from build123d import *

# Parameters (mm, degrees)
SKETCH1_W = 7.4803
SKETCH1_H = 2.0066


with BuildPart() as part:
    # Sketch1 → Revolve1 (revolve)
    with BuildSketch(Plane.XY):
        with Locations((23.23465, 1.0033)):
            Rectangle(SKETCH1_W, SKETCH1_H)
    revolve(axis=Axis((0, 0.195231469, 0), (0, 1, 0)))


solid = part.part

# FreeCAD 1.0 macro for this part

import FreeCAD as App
import Part
import Sketcher

V = App.Vector
Q = App.Units.Quantity

doc = App.newDocument("Part")
params = doc.addObject("Spreadsheet::Sheet", "Params")
for row, (alias, value) in enumerate([
    ("sketch1_height", "0.079 in"),
    ("revolution_angle", "360 deg"),
], start=1):
    params.set(f"A{row}", alias)
    params.set(f"B{row}", "=" + value)
    params.setAlias(f"B{row}", alias)

body = doc.addObject("PartDesign::Body", "Body")

# Sketch on XY plane
sketch1 = body.newObject("Sketcher::SketchObject", "Sketch")
sketch1.AttachmentSupport = (doc.getObject("XY_Plane"), [""])
sketch1.MapMode = "FlatFace"
sketch1.addGeometry([
    Part.LineSegment(V(19.5, 2, 0), V(19.5, 0, 0)),
    Part.LineSegment(V(19.5, 0, 0), V(27, 0, 0)),
    Part.LineSegment(V(27, 0, 0), V(27, 2, 0)),
    Part.LineSegment(V(27, 2, 0), V(19.5, 2, 0)),
], False)
sketch1.addConstraint([
    Sketcher.Constraint("Coincident", 0, 2, 1, 1),
    Sketcher.Constraint("Coincident", 1, 2, 2, 1),
    Sketcher.Constraint("Coincident", 2, 2, 3, 1),
    Sketcher.Constraint("Coincident", 3, 2, 0, 1),
    Sketcher.Constraint("Vertical", 0),
    Sketcher.Constraint("Horizontal", 1),
    Sketcher.Constraint("Vertical", 2),
    Sketcher.Constraint("Horizontal", 3),
    Sketcher.Constraint("PointOnObject", 0, 2, -1),
    Sketcher.Constraint("DistanceY", 0, 2, 0, 1, Q("0.079 in")),
    Sketcher.Constraint("DistanceX", 1, 1, 1, 2, Q("0.2945 in")),
    Sketcher.Constraint("DistanceX", -1, 1, 1, 2, Q("1.062 in")),
])
sketch1.setExpression("Constraints[9]", "Params.sketch1_height")
revolution = body.newObject("PartDesign::Revolution", "Revolution")
revolution.Profile = sketch1
revolution.ReferenceAxis = (sketch1, ["V_Axis"])
revolution.setExpression("Angle", "Params.revolution_angle")

doc.recompute()
